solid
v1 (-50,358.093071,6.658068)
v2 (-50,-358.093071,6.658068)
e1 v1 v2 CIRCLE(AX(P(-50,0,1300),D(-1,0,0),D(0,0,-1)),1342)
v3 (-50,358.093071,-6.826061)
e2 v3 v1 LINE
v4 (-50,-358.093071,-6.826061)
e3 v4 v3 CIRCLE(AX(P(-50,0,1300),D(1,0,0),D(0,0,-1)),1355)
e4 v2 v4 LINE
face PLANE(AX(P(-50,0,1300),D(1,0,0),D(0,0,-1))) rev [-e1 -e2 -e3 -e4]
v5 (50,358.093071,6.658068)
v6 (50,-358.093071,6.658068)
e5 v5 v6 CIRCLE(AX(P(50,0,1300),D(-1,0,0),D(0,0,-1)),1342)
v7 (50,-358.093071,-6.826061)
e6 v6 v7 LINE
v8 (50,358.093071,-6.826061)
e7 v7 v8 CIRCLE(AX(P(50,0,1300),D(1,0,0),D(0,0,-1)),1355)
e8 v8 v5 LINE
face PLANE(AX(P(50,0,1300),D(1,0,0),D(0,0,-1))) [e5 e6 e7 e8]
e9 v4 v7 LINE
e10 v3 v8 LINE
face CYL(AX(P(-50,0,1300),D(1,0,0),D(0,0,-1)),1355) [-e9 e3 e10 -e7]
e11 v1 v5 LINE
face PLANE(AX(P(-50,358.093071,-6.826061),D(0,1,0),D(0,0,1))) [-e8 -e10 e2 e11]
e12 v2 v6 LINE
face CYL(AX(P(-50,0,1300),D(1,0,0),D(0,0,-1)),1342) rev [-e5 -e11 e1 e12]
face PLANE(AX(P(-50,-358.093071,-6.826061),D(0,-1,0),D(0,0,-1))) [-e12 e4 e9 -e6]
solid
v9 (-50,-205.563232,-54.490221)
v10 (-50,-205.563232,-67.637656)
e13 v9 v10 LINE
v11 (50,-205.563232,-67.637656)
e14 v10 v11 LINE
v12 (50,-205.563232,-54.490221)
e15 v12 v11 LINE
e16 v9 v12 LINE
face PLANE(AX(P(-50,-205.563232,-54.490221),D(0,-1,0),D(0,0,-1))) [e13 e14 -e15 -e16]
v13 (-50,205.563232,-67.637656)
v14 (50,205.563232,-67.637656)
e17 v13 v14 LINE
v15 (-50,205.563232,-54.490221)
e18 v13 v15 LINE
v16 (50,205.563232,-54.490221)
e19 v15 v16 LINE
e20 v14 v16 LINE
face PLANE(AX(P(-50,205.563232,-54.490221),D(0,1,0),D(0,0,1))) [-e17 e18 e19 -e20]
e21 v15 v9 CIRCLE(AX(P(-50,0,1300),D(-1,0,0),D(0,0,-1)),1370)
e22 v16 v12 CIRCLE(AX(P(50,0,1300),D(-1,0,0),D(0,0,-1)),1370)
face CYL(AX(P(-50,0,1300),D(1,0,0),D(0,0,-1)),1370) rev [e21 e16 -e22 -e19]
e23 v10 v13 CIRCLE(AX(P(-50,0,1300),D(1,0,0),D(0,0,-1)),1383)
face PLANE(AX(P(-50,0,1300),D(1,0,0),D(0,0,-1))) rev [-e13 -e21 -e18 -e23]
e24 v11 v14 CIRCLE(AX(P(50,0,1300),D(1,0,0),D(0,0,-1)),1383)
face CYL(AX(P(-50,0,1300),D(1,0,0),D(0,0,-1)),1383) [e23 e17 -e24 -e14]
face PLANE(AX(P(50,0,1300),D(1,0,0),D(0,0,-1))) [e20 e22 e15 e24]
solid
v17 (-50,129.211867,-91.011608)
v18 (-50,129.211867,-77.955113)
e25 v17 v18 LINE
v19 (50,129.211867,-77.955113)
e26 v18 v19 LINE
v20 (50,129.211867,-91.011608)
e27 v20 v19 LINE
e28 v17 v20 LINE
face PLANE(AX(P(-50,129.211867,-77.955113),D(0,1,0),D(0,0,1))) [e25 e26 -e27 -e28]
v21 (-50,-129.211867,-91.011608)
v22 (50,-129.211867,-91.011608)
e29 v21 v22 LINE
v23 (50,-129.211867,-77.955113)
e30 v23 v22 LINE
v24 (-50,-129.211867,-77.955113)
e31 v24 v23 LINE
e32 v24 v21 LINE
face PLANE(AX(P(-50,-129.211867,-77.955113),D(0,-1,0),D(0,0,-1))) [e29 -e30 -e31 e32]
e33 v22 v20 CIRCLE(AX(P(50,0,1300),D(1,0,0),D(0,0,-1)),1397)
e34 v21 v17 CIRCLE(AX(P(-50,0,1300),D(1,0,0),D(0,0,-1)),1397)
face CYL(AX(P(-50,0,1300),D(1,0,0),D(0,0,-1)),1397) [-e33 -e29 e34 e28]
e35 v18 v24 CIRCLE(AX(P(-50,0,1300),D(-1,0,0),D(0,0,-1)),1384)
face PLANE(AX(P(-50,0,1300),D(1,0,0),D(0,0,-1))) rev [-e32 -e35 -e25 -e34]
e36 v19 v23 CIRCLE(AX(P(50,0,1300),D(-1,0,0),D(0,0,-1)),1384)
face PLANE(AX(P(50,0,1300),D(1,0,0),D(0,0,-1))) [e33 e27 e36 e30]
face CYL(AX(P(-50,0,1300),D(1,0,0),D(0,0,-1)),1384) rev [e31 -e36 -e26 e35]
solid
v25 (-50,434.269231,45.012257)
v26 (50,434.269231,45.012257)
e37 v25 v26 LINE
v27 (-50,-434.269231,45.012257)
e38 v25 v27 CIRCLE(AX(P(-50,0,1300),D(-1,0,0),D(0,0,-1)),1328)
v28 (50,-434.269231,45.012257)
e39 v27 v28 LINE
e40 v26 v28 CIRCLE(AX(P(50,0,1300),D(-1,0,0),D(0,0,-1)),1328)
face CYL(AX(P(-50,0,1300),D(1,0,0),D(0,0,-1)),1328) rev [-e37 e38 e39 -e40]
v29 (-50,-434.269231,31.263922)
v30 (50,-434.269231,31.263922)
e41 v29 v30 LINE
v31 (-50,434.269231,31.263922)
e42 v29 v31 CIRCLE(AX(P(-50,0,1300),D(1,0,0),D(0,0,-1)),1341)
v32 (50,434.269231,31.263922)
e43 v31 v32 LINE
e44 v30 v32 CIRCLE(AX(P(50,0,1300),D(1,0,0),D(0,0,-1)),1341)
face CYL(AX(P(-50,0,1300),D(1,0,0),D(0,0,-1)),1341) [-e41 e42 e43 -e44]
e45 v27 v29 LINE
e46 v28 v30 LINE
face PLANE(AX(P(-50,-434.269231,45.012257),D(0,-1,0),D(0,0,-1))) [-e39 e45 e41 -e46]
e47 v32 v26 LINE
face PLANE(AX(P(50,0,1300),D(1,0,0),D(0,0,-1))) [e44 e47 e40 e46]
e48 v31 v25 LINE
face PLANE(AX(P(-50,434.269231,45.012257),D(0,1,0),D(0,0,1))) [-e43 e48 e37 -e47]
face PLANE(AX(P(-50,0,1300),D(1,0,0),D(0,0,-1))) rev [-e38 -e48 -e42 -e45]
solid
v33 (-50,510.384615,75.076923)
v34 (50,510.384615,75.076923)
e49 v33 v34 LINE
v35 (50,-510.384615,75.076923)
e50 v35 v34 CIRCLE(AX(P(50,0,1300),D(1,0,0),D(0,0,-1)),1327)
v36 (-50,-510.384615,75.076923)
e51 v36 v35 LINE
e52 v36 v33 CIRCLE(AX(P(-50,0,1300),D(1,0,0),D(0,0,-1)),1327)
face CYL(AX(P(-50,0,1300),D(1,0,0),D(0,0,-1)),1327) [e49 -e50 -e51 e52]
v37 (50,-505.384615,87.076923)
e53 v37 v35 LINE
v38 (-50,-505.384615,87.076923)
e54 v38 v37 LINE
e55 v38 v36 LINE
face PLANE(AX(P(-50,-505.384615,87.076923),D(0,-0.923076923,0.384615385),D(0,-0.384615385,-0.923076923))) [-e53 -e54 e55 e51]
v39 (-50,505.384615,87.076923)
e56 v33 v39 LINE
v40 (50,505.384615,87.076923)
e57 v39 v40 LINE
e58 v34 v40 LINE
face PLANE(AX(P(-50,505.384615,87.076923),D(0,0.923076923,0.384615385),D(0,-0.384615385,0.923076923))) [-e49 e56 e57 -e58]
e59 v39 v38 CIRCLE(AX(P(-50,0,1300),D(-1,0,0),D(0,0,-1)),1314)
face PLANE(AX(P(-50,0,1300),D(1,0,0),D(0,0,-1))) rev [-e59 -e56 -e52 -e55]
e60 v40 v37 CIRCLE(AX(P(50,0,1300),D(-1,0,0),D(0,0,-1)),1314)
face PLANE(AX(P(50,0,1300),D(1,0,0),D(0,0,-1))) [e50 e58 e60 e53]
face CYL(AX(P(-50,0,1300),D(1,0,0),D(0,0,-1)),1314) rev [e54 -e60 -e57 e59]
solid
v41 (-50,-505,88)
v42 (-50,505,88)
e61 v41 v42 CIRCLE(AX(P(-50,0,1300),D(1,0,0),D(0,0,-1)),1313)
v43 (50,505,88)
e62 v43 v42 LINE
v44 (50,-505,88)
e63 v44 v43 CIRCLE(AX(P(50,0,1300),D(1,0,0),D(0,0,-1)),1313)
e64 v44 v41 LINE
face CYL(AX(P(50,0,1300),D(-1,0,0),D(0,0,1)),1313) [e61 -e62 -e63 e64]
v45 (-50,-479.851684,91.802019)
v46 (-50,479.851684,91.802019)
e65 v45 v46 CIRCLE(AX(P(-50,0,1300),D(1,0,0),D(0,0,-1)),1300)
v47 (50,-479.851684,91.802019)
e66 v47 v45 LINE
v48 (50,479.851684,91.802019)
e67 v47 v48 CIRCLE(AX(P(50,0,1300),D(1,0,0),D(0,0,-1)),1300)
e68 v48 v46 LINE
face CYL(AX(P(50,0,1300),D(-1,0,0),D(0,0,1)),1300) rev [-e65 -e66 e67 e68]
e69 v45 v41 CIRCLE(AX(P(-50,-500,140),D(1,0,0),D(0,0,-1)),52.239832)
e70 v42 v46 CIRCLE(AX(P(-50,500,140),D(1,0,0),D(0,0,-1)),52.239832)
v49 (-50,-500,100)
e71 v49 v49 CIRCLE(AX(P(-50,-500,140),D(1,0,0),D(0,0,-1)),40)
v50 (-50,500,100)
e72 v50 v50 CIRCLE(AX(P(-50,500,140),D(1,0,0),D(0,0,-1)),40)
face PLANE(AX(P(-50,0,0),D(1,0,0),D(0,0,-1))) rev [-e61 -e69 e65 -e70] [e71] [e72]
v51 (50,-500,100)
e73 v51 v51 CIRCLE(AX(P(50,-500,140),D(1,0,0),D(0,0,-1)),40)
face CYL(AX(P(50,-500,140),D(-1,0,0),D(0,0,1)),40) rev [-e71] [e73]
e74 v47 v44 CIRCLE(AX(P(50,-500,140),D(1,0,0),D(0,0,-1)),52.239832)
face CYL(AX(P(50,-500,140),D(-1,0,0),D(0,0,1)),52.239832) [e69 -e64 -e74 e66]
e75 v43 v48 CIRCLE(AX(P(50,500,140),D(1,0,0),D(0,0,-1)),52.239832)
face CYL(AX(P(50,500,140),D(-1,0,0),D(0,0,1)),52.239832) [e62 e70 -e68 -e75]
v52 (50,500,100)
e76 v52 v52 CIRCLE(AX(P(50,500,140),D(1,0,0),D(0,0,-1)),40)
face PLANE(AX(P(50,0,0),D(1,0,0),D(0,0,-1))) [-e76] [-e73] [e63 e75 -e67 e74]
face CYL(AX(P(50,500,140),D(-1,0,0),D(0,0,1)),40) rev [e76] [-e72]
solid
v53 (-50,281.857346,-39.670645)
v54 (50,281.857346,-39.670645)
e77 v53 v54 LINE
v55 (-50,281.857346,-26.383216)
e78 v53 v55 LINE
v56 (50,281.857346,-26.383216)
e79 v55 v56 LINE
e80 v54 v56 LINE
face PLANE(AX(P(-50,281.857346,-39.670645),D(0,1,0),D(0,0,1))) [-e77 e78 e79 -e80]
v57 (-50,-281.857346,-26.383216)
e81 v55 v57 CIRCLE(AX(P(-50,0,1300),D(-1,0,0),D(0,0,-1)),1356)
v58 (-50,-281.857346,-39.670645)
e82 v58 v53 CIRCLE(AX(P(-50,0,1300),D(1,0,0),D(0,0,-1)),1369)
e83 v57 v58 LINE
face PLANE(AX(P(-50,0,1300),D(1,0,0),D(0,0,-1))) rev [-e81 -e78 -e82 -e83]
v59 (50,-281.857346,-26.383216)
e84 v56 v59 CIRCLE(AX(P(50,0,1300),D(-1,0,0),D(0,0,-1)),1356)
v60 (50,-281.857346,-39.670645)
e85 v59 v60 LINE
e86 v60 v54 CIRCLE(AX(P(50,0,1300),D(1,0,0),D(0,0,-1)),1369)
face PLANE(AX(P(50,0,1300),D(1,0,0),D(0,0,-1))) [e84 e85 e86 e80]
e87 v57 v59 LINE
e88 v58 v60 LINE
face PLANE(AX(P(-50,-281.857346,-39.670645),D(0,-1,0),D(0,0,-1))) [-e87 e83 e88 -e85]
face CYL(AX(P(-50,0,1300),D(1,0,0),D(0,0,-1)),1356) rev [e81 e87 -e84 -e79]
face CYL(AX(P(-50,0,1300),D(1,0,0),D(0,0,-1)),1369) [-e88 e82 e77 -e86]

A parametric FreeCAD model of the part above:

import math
import FreeCAD as App
import Part
import Sketcher
from FreeCAD import Vector
Q = App.Units.Quantity

doc = App.newDocument("Part")
body = doc.addObject("PartDesign::Body", "Body")

# Sketch on YZ plane
sketch1 = body.newObject("Sketcher::SketchObject", "Sketch")
sketch1.AttachmentSupport = (doc.getObject("YZ_Plane"), [""])
sketch1.MapMode = "FlatFace"
sketch1.addGeometry(Part.ArcOfCircle(Part.Circle(Vector(-500, 140, 0), Vector(0, 0, 1), 52), math.radians(-67), math.radians(265)), False)
sketch1.addGeometry(Part.ArcOfCircle(Part.Circle(Vector(0, 1300, 0), Vector(0, 0, 1), 1313), math.radians(-113), math.radians(-67)), False)
sketch1.addGeometry(Part.ArcOfCircle(Part.Circle(Vector(500, 140, 0), Vector(0, 0, 1), 52), math.radians(-85), math.radians(247)), False)
sketch1.addGeometry(Part.ArcOfCircle(Part.Circle(Vector(0, 1300, 0), Vector(0, 0, 1), 1300), math.radians(-112), math.radians(-68)), False)
sketch1.addGeometry(Part.Circle(Vector(-500, 140, 0), Vector(0, 0, 1), 40), False)
sketch1.addGeometry(Part.Circle(Vector(500, 140, 0), Vector(0, 0, 1), 40), False)
sketch1.addConstraint(Sketcher.Constraint("Coincident", 0, 2, 1, 1))
sketch1.addConstraint(Sketcher.Constraint("Coincident", 1, 2, 2, 1))
sketch1.addConstraint(Sketcher.Constraint("Coincident", 2, 2, 3, 2))
sketch1.addConstraint(Sketcher.Constraint("Coincident", 3, 1, 0, 1))
sketch1.addConstraint(Sketcher.Constraint("Coincident", 3, 3, 1, 3))
sketch1.addConstraint(Sketcher.Constraint("Coincident", 4, 3, 0, 3))
sketch1.addConstraint(Sketcher.Constraint("Coincident", 5, 3, 2, 3))
sketch1.addConstraint(Sketcher.Constraint("Equal", 0, 2))
sketch1.addConstraint(Sketcher.Constraint("Equal", 4, 5))
sketch1.addConstraint(Sketcher.Constraint("Symmetric", 0, 3, 2, 3, -2))
sketch1.addConstraint(Sketcher.Constraint("PointOnObject", 1, 3, -2))
sketch1.addConstraint(Sketcher.Constraint("Diameter", 4, Q("80 mm")))
sketch1.addConstraint(Sketcher.Constraint("Radius", 1, Q("1313 mm")))
sketch1.addConstraint(Sketcher.Constraint("Radius", 3, Q("1300 mm")))
sketch1.addConstraint(Sketcher.Constraint("DistanceX", 0, 3, -1, 1, Q("500 mm")))
sketch1.addConstraint(Sketcher.Constraint("DistanceY", -1, 1, 0, 3, Q("140 mm")))
sketch1.addConstraint(Sketcher.Constraint("DistanceY", -1, 1, 1, 3, Q("1300 mm")))
sketch1.addConstraint(Sketcher.Constraint("DistanceX", 0, 2, -1, 1, Q("505 mm")))
pad1 = body.newObject("PartDesign::Pad", "Pad")
pad1.Profile = sketch1
pad1.Length = 100
pad1.Midplane = True
body2 = doc.addObject("PartDesign::Body", "Body001")

# Sketch on YZ plane
sketch2 = body2.newObject("Sketcher::SketchObject", "Sketch001")
sketch2.AttachmentSupport = (doc.getObject("YZ_Plane001"), [""])
sketch2.MapMode = "FlatFace"
sketch2.AttachmentOffset = App.Placement(Vector(0, 0, 50), App.Rotation())
sketch2.addGeometry(Part.LineSegment(Vector(-505, 87, 0), Vector(-510, 75, 0)), False)
sketch2.addGeometry(Part.ArcOfCircle(Part.Circle(Vector(0, 1300, 0), Vector(0, 0, 1), 1327), math.radians(-113), math.radians(-67)), False)
sketch2.addGeometry(Part.LineSegment(Vector(510, 75, 0), Vector(505, 87, 0)), False)
sketch2.addGeometry(Part.ArcOfCircle(Part.Circle(Vector(0, 1300, 0), Vector(0, 0, 1), 1314), math.radians(-113), math.radians(-67)), False)
sketch2.addConstraint(Sketcher.Constraint("Coincident", 0, 2, 1, 1))
sketch2.addConstraint(Sketcher.Constraint("Coincident", 1, 2, 2, 1))
sketch2.addConstraint(Sketcher.Constraint("Coincident", 2, 2, 3, 2))
sketch2.addConstraint(Sketcher.Constraint("Coincident", 3, 1, 0, 1))
sketch2.addConstraint(Sketcher.Constraint("Coincident", 3, 3, 1, 3))
sketch2.addConstraint(Sketcher.Constraint("PointOnObject", 1, 3, -2))
sketch2.addConstraint(Sketcher.Constraint("Radius", 1, Q("1327 mm")))
sketch2.addConstraint(Sketcher.Constraint("Radius", 3, Q("1314 mm")))
sketch2.addConstraint(Sketcher.Constraint("DistanceY", -1, 1, 1, 3, Q("1300 mm")))
sketch2.addConstraint(Sketcher.Constraint("DistanceY", 0, 2, 2, 2, Q("12 mm")))
sketch2.addConstraint(Sketcher.Constraint("DistanceX", 0, 2, 2, 2, Q("1015.769231 mm")))
sketch2.addConstraint(Sketcher.Constraint("Angle", 0, Q("-112.619865 deg")))
sketch2.addConstraint(Sketcher.Constraint("Angle", 2, Q("112.619865 deg")))
pad2 = body2.newObject("PartDesign::Pad", "Pad001")
pad2.Profile = sketch2
pad2.Length = 100
pad2.Reversed = True
body3 = doc.addObject("PartDesign::Body", "Body002")

# Sketch on YZ plane
sketch3 = body3.newObject("Sketcher::SketchObject", "Sketch002")
sketch3.AttachmentSupport = (doc.getObject("YZ_Plane002"), [""])
sketch3.MapMode = "FlatFace"
sketch3.AttachmentOffset = App.Placement(Vector(0, 0, 50), App.Rotation())
sketch3.addGeometry(Part.LineSegment(Vector(434, 31, 0), Vector(434, 45, 0)), False)
sketch3.addGeometry(Part.ArcOfCircle(Part.Circle(Vector(0, 1300, 0), Vector(0, 0, 1), 1328), math.radians(-109), math.radians(-71)), False)
sketch3.addGeometry(Part.LineSegment(Vector(-434, 45, 0), Vector(-434, 31, 0)), False)
sketch3.addGeometry(Part.ArcOfCircle(Part.Circle(Vector(0, 1300, 0), Vector(0, 0, 1), 1341), math.radians(-109), math.radians(-71)), False)
sketch3.addConstraint(Sketcher.Constraint("Coincident", 0, 2, 1, 2))
sketch3.addConstraint(Sketcher.Constraint("Coincident", 1, 1, 2, 1))
sketch3.addConstraint(Sketcher.Constraint("Coincident", 2, 2, 3, 1))
sketch3.addConstraint(Sketcher.Constraint("Coincident", 3, 2, 0, 1))
sketch3.addConstraint(Sketcher.Constraint("Vertical", 0))
sketch3.addConstraint(Sketcher.Constraint("Vertical", 2))
sketch3.addConstraint(Sketcher.Constraint("Coincident", 3, 3, 1, 3))
sketch3.addConstraint(Sketcher.Constraint("PointOnObject", 1, 3, -2))
sketch3.addConstraint(Sketcher.Constraint("Radius", 1, Q("1328 mm")))
sketch3.addConstraint(Sketcher.Constraint("Radius", 3, Q("1341 mm")))
sketch3.addConstraint(Sketcher.Constraint("DistanceY", -1, 1, 1, 3, Q("1300 mm")))
sketch3.addConstraint(Sketcher.Constraint("DistanceX", -1, 1, 0, 2, Q("434.269231 mm")))
sketch3.addConstraint(Sketcher.Constraint("DistanceX", 2, 2, -1, 1, Q("434.269231 mm")))
pad3 = body3.newObject("PartDesign::Pad", "Pad002")
pad3.Profile = sketch3
pad3.Length = 100
pad3.Reversed = True
body4 = doc.addObject("PartDesign::Body", "Body003")

# Sketch on YZ plane
sketch4 = body4.newObject("Sketcher::SketchObject", "Sketch003")
sketch4.AttachmentSupport = (doc.getObject("YZ_Plane003"), [""])
sketch4.MapMode = "FlatFace"
sketch4.AttachmentOffset = App.Placement(Vector(0, 0, 50), App.Rotation())
sketch4.addGeometry(Part.LineSegment(Vector(-358, 7, 0), Vector(-358, -7, 0)), False)
sketch4.addGeometry(Part.ArcOfCircle(Part.Circle(Vector(0, 1300, 0), Vector(0, 0, 1), 1355), math.radians(-105), math.radians(-75)), False)
sketch4.addGeometry(Part.LineSegment(Vector(358, -7, 0), Vector(358, 7, 0)), False)
sketch4.addGeometry(Part.ArcOfCircle(Part.Circle(Vector(0, 1300, 0), Vector(0, 0, 1), 1342), math.radians(-105), math.radians(-75)), False)
sketch4.addConstraint(Sketcher.Constraint("Coincident", 0, 2, 1, 1))
sketch4.addConstraint(Sketcher.Constraint("Coincident", 1, 2, 2, 1))
sketch4.addConstraint(Sketcher.Constraint("Coincident", 2, 2, 3, 2))
sketch4.addConstraint(Sketcher.Constraint("Coincident", 3, 1, 0, 1))
sketch4.addConstraint(Sketcher.Constraint("Vertical", 0))
sketch4.addConstraint(Sketcher.Constraint("Vertical", 2))
sketch4.addConstraint(Sketcher.Constraint("Coincident", 3, 3, 1, 3))
sketch4.addConstraint(Sketcher.Constraint("PointOnObject", 1, 3, -2))
sketch4.addConstraint(Sketcher.Constraint("Radius", 1, Q("1355 mm")))
sketch4.addConstraint(Sketcher.Constraint("Radius", 3, Q("1342 mm")))
sketch4.addConstraint(Sketcher.Constraint("DistanceY", -1, 1, 1, 3, Q("1300 mm")))
sketch4.addConstraint(Sketcher.Constraint("DistanceX", 0, 2, -1, 1, Q("358.093071 mm")))
sketch4.addConstraint(Sketcher.Constraint("DistanceX", -1, 1, 2, 2, Q("358.093071 mm")))
pad4 = body4.newObject("PartDesign::Pad", "Pad003")
pad4.Profile = sketch4
pad4.Length = 100
pad4.Reversed = True
body5 = doc.addObject("PartDesign::Body", "Body004")

# Sketch on YZ plane
sketch5 = body5.newObject("Sketcher::SketchObject", "Sketch004")
sketch5.AttachmentSupport = (doc.getObject("YZ_Plane004"), [""])
sketch5.MapMode = "FlatFace"
sketch5.AttachmentOffset = App.Placement(Vector(0, 0, 50), App.Rotation())
sketch5.addGeometry(Part.LineSegment(Vector(-282, -26, 0), Vector(-282, -40, 0)), False)
sketch5.addGeometry(Part.ArcOfCircle(Part.Circle(Vector(0, 1300, 0), Vector(0, 0, 1), 1369), math.radians(-102), math.radians(-78)), False)
sketch5.addGeometry(Part.LineSegment(Vector(282, -40, 0), Vector(282, -26, 0)), False)
sketch5.addGeometry(Part.ArcOfCircle(Part.Circle(Vector(0, 1300, 0), Vector(0, 0, 1), 1356), math.radians(-102), math.radians(-78)), False)
sketch5.addConstraint(Sketcher.Constraint("Coincident", 0, 2, 1, 1))
sketch5.addConstraint(Sketcher.Constraint("Coincident", 1, 2, 2, 1))
sketch5.addConstraint(Sketcher.Constraint("Coincident", 2, 2, 3, 2))
sketch5.addConstraint(Sketcher.Constraint("Coincident", 3, 1, 0, 1))
sketch5.addConstraint(Sketcher.Constraint("Vertical", 0))
sketch5.addConstraint(Sketcher.Constraint("Vertical", 2))
sketch5.addConstraint(Sketcher.Constraint("Coincident", 3, 3, 1, 3))
sketch5.addConstraint(Sketcher.Constraint("PointOnObject", 1, 3, -2))
sketch5.addConstraint(Sketcher.Constraint("Radius", 1, Q("1369 mm")))
sketch5.addConstraint(Sketcher.Constraint("Radius", 3, Q("1356 mm")))
sketch5.addConstraint(Sketcher.Constraint("DistanceY", -1, 1, 1, 3, Q("1300 mm")))
sketch5.addConstraint(Sketcher.Constraint("DistanceX", 0, 2, 2, 2, Q("563.714692 mm")))
sketch5.addConstraint(Sketcher.Constraint("DistanceY", 0, 2, 2, 2, Q("13.287428 mm")))
pad5 = body5.newObject("PartDesign::Pad", "Pad004")
pad5.Profile = sketch5
pad5.Length = 100
pad5.Reversed = True
body6 = doc.addObject("PartDesign::Body", "Body005")

# Sketch on YZ plane
sketch6 = body6.newObject("Sketcher::SketchObject", "Sketch005")
sketch6.AttachmentSupport = (doc.getObject("YZ_Plane005"), [""])
sketch6.MapMode = "FlatFace"
sketch6.AttachmentOffset = App.Placement(Vector(0, 0, 50), App.Rotation())
sketch6.addGeometry(Part.LineSegment(Vector(-206, -54, 0), Vector(-206, -68, 0)), False)
sketch6.addGeometry(Part.ArcOfCircle(Part.Circle(Vector(0, 1300, 0), Vector(0, 0, 1), 1383), math.radians(-98.55), math.radians(-81.45)), False)
sketch6.addGeometry(Part.LineSegment(Vector(206, -68, 0), Vector(206, -54, 0)), False)
sketch6.addGeometry(Part.ArcOfCircle(Part.Circle(Vector(0, 1300, 0), Vector(0, 0, 1), 1370), math.radians(-98.63), math.radians(-81.37)), False)
sketch6.addConstraint(Sketcher.Constraint("Coincident", 0, 2, 1, 1))
sketch6.addConstraint(Sketcher.Constraint("Coincident", 1, 2, 2, 1))
sketch6.addConstraint(Sketcher.Constraint("Coincident", 2, 2, 3, 2))
sketch6.addConstraint(Sketcher.Constraint("Coincident", 3, 1, 0, 1))
sketch6.addConstraint(Sketcher.Constraint("Vertical", 0))
sketch6.addConstraint(Sketcher.Constraint("Vertical", 2))
sketch6.addConstraint(Sketcher.Constraint("Coincident", 3, 3, 1, 3))
sketch6.addConstraint(Sketcher.Constraint("PointOnObject", 1, 3, -2))
sketch6.addConstraint(Sketcher.Constraint("Radius", 1, Q("1383 mm")))
sketch6.addConstraint(Sketcher.Constraint("Radius", 3, Q("1370 mm")))
sketch6.addConstraint(Sketcher.Constraint("DistanceY", -1, 1, 1, 3, Q("1300 mm")))
sketch6.addConstraint(Sketcher.Constraint("DistanceX", 0, 2, -1, 1, Q("205.563232 mm")))
sketch6.addConstraint(Sketcher.Constraint("DistanceX", -1, 1, 2, 2, Q("205.563232 mm")))
pad6 = body6.newObject("PartDesign::Pad", "Pad005")
pad6.Profile = sketch6
pad6.Length = 100
pad6.Reversed = True
body7 = doc.addObject("PartDesign::Body", "Body006")

# Sketch on YZ plane
sketch7 = body7.newObject("Sketcher::SketchObject", "Sketch006")
sketch7.AttachmentSupport = (doc.getObject("YZ_Plane006"), [""])
sketch7.MapMode = "FlatFace"
sketch7.AttachmentOffset = App.Placement(Vector(0, 0, 50), App.Rotation())
sketch7.addGeometry(Part.LineSegment(Vector(-129, -78, 0), Vector(-129, -91, 0)), False)
sketch7.addGeometry(Part.ArcOfCircle(Part.Circle(Vector(0, 1300, 0), Vector(0, 0, 1), 1397), math.radians(-95.31), math.radians(-84.69)), False)
sketch7.addGeometry(Part.LineSegment(Vector(129, -91, 0), Vector(129, -78, 0)), False)
sketch7.addGeometry(Part.ArcOfCircle(Part.Circle(Vector(0, 1300, 0), Vector(0, 0, 1), 1384), math.radians(-95.36), math.radians(-84.64)), False)
sketch7.addConstraint(Sketcher.Constraint("Coincident", 0, 2, 1, 1))
sketch7.addConstraint(Sketcher.Constraint("Coincident", 1, 2, 2, 1))
sketch7.addConstraint(Sketcher.Constraint("Coincident", 2, 2, 3, 2))
sketch7.addConstraint(Sketcher.Constraint("Coincident", 3, 1, 0, 1))
sketch7.addConstraint(Sketcher.Constraint("Vertical", 0))
sketch7.addConstraint(Sketcher.Constraint("Vertical", 2))
sketch7.addConstraint(Sketcher.Constraint("Coincident", 3, 3, 1, 3))
sketch7.addConstraint(Sketcher.Constraint("PointOnObject", 1, 3, -2))
sketch7.addConstraint(Sketcher.Constraint("Radius", 1, Q("1397 mm")))
sketch7.addConstraint(Sketcher.Constraint("Radius", 3, Q("1384 mm")))
sketch7.addConstraint(Sketcher.Constraint("DistanceY", -1, 1, 1, 3, Q("1300 mm")))
sketch7.addConstraint(Sketcher.Constraint("DistanceX", 0, 2, -1, 1, Q("129.211867 mm")))
sketch7.addConstraint(Sketcher.Constraint("DistanceX", -1, 1, 2, 2, Q("129.211867 mm")))
pad7 = body7.newObject("PartDesign::Pad", "Pad006")
pad7.Profile = sketch7
pad7.Length = 100
pad7.Reversed = True

doc.recompute()
